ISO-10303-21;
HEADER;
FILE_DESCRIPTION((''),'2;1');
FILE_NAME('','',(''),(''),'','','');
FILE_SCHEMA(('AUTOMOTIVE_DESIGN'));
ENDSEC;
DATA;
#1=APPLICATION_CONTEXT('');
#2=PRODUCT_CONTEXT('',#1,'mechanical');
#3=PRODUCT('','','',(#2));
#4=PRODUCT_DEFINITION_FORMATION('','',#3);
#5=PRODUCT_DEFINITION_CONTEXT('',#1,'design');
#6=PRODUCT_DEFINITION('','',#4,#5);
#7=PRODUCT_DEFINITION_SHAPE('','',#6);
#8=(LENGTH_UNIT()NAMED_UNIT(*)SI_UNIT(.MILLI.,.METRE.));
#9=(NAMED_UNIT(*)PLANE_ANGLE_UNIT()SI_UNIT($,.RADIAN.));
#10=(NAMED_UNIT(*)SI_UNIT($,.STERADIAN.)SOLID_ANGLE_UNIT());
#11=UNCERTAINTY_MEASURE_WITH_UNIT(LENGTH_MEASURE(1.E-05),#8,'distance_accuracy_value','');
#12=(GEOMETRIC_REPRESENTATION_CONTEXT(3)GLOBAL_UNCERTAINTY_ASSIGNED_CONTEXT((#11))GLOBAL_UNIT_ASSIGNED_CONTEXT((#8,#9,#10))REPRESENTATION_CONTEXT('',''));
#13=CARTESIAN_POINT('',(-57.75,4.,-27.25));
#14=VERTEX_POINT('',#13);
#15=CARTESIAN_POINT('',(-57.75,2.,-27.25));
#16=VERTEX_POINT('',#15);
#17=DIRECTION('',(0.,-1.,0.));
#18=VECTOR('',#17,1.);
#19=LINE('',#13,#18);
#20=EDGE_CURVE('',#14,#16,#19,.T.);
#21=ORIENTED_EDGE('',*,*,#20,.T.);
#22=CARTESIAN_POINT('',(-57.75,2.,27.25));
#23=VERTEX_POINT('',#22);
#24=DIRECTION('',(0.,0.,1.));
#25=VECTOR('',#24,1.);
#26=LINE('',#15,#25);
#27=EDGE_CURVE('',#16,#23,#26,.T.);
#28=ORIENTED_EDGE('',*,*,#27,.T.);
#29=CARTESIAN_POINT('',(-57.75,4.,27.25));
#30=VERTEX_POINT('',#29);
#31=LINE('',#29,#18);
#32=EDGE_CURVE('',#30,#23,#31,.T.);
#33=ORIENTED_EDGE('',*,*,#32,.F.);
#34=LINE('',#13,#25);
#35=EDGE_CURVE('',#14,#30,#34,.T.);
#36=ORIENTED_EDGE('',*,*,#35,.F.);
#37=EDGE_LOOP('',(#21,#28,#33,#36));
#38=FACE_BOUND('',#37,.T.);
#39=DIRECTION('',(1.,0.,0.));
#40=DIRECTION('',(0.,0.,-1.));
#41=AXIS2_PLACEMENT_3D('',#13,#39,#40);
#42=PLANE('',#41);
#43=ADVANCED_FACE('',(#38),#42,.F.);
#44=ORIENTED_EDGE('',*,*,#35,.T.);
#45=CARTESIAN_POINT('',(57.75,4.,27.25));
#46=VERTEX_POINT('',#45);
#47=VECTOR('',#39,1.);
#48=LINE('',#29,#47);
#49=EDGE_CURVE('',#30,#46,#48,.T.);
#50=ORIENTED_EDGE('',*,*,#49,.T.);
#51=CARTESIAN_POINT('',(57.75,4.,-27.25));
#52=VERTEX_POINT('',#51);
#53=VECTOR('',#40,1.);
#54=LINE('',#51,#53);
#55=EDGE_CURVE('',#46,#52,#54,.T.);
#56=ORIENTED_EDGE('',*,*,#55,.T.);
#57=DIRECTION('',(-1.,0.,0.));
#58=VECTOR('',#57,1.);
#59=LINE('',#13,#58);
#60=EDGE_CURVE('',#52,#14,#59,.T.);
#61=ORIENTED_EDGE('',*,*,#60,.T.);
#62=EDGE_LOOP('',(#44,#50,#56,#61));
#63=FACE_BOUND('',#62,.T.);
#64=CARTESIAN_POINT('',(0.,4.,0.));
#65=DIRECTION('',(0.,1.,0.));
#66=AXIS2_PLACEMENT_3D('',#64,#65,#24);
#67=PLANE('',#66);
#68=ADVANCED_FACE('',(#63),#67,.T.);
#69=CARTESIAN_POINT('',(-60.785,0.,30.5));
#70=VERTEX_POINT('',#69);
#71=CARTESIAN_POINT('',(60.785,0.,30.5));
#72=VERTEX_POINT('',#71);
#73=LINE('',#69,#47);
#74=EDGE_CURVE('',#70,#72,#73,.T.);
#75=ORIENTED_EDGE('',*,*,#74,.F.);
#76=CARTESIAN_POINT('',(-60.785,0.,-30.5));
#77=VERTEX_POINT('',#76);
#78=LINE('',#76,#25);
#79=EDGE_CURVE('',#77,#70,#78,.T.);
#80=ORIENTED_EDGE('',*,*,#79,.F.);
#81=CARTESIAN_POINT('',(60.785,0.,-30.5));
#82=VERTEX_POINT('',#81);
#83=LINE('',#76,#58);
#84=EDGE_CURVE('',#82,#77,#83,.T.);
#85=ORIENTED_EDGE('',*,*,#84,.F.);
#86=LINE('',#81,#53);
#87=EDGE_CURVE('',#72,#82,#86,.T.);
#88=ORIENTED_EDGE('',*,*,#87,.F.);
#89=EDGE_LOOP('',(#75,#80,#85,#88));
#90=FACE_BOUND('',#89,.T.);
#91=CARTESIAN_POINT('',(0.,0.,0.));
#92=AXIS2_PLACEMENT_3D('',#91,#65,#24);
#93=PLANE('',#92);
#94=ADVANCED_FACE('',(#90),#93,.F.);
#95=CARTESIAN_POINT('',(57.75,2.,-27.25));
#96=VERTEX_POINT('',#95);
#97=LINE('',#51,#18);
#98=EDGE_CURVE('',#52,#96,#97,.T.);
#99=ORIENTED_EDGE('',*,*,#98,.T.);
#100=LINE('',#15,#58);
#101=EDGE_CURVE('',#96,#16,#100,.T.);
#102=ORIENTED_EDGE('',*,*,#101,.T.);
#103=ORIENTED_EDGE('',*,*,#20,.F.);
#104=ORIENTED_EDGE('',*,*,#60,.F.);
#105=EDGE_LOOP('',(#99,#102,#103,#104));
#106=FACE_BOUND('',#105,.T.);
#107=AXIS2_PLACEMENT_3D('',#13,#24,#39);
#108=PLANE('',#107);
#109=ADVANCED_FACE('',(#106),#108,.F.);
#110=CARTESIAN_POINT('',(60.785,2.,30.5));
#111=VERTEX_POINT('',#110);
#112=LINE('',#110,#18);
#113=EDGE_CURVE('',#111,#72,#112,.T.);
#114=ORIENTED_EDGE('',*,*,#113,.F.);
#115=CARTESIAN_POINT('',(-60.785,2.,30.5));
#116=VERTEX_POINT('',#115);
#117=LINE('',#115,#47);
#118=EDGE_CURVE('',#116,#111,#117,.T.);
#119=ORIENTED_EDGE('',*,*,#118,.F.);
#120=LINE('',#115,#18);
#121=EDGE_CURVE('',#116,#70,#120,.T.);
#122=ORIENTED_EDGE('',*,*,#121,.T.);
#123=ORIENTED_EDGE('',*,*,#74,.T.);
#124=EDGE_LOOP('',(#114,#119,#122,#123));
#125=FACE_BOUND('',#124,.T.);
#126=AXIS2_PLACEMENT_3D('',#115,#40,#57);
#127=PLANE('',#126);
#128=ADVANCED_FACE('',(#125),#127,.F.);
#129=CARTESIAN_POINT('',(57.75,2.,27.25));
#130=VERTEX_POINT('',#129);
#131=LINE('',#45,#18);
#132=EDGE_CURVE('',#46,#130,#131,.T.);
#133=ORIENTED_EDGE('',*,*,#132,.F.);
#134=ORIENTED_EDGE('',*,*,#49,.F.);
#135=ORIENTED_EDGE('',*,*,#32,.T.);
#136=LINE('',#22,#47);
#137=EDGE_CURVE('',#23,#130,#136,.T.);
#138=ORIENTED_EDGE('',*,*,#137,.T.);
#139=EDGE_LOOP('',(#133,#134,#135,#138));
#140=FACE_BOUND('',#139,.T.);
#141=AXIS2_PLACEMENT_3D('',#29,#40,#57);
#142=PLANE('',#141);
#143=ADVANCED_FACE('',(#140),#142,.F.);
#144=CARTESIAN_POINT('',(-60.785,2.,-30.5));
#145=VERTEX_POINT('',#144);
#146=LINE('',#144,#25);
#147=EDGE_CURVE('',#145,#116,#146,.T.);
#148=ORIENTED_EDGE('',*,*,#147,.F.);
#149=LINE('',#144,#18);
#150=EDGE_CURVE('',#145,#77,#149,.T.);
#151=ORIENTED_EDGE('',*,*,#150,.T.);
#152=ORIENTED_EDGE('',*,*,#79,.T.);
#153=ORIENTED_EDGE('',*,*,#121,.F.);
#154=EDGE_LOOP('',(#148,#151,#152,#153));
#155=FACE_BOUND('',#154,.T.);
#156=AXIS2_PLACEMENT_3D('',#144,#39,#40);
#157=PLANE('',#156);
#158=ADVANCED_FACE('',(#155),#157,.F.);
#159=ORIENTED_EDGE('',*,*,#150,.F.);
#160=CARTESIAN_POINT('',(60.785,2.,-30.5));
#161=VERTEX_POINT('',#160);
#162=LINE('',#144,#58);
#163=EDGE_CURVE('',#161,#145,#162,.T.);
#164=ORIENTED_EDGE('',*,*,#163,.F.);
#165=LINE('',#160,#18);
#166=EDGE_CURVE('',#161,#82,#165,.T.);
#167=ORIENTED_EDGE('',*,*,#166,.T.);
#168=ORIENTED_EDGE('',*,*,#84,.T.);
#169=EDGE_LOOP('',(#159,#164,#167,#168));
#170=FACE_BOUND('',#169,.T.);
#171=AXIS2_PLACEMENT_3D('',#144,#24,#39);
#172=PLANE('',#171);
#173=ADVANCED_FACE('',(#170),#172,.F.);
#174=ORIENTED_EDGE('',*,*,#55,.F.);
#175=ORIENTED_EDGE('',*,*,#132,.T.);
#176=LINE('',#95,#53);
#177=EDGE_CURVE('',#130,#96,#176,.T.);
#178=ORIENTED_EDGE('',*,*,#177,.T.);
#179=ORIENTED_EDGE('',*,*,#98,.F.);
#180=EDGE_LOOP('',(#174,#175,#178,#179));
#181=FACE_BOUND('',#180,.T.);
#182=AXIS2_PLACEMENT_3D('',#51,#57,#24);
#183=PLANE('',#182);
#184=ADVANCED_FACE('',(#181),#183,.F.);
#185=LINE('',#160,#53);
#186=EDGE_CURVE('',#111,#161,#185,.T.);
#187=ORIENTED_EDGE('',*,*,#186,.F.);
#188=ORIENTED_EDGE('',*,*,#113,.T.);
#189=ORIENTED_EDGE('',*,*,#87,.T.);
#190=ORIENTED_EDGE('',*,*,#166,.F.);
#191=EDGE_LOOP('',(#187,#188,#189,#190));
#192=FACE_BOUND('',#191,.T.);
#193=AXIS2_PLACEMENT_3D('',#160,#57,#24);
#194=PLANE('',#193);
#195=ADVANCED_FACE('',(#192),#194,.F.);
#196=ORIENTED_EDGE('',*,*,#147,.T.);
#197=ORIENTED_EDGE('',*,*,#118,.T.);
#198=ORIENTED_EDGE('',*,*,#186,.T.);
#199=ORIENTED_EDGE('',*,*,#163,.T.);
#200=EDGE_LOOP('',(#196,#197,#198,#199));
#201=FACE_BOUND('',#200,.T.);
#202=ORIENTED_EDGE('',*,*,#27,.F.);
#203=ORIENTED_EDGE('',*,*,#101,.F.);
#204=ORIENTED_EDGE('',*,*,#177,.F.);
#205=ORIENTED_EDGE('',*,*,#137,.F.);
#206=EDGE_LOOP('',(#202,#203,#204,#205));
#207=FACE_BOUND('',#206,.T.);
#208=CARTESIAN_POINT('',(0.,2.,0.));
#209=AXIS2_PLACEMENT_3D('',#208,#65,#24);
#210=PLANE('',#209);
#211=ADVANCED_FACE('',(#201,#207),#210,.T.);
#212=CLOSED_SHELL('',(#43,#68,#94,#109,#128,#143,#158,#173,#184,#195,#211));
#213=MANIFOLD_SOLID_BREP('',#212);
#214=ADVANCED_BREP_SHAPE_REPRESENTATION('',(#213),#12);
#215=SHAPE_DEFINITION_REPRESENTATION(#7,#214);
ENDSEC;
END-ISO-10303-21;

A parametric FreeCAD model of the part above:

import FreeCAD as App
import Part
import Sketcher

doc = App.newDocument("Part")
params = doc.addObject("Spreadsheet::Sheet", "Params")
for row, (alias, value) in enumerate([
    ("sketch1_height", "61 mm"),
    ("sketch1_width", "121.57 mm"),
    ("pad1_length", "2 mm"),
    ("sketch2_width", "115.5 mm"),
    ("sketch2_height", "54.5 mm"),
    ("pad2_length", "2 mm"),
], start=1):
    params.set(f"A{row}", alias)
    params.set(f"B{row}", "=" + value)
    params.setAlias(f"B{row}", alias)

body = doc.addObject("PartDesign::Body", "Body")

# Sketch on XZ plane
sketch1 = body.newObject("Sketcher::SketchObject", "Sketch")
sketch1.AttachmentSupport = (doc.getObject("XZ_Plane"), [""])
sketch1.MapMode = "FlatFace"
sketch1.addGeometry([
    Part.LineSegment(App.Vector(-61, -30, 0), App.Vector(-61, 30, 0)),
    Part.LineSegment(App.Vector(-61, 30, 0), App.Vector(61, 30, 0)),
    Part.LineSegment(App.Vector(61, 30, 0), App.Vector(61, -30, 0)),
    Part.LineSegment(App.Vector(61, -30, 0), App.Vector(-61, -30, 0)),
], False)
sketch1.addConstraint([
    Sketcher.Constraint("Coincident", 0, 2, 1, 1),
    Sketcher.Constraint("Coincident", 1, 2, 2, 1),
    Sketcher.Constraint("Coincident", 2, 2, 3, 1),
    Sketcher.Constraint("Coincident", 3, 2, 0, 1),
    Sketcher.Constraint("Vertical", 0),
    Sketcher.Constraint("Horizontal", 1),
    Sketcher.Constraint("Vertical", 2),
    Sketcher.Constraint("Horizontal", 3),
    Sketcher.Constraint("Symmetric", 0, 2, 2, 2, -1, 1),
    Sketcher.Constraint("DistanceY", 0, 1, 0, 2, 61.0),
    Sketcher.Constraint("DistanceX", 1, 1, 1, 2, 121.57),
])
sketch1.setExpression("Constraints[9]", "Params.sketch1_height")
sketch1.setExpression("Constraints[10]", "Params.sketch1_width")
pad1 = body.newObject("PartDesign::Pad", "Pad")
pad1.Profile = sketch1
pad1.setExpression("Length", "Params.pad1_length")
pad1.Reversed = True

# Sketch on XZ plane
sketch2 = body.newObject("Sketcher::SketchObject", "Sketch001")
sketch2.AttachmentSupport = (doc.getObject("XZ_Plane"), [""])
sketch2.MapMode = "FlatFace"
sketch2.AttachmentOffset = App.Placement(App.Vector(0, 0, -2), App.Rotation())
sketch2.addGeometry([
    Part.LineSegment(App.Vector(-58, -27, 0), App.Vector(-58, 27, 0)),
    Part.LineSegment(App.Vector(-58, 27, 0), App.Vector(58, 27, 0)),
    Part.LineSegment(App.Vector(58, 27, 0), App.Vector(58, -27, 0)),
    Part.LineSegment(App.Vector(58, -27, 0), App.Vector(-58, -27, 0)),
], False)
sketch2.addConstraint([
    Sketcher.Constraint("Coincident", 0, 2, 1, 1),
    Sketcher.Constraint("Coincident", 1, 2, 2, 1),
    Sketcher.Constraint("Coincident", 2, 2, 3, 1),
    Sketcher.Constraint("Coincident", 3, 2, 0, 1),
    Sketcher.Constraint("Vertical", 0),
    Sketcher.Constraint("Horizontal", 1),
    Sketcher.Constraint("Vertical", 2),
    Sketcher.Constraint("Horizontal", 3),
    Sketcher.Constraint("Symmetric", 0, 2, 2, 2, -1, 1),
    Sketcher.Constraint("DistanceX", 1, 1, 1, 2, 115.5),
    Sketcher.Constraint("DistanceY", 0, 1, 0, 2, 54.5),
])
sketch2.setExpression("Constraints[9]", "Params.sketch2_width")
sketch2.setExpression("Constraints[10]", "Params.sketch2_height")
pad2 = body.newObject("PartDesign::Pad", "Pad001")
pad2.Profile = sketch2
pad2.setExpression("Length", "Params.pad2_length")
pad2.Reversed = True

doc.recompute()
